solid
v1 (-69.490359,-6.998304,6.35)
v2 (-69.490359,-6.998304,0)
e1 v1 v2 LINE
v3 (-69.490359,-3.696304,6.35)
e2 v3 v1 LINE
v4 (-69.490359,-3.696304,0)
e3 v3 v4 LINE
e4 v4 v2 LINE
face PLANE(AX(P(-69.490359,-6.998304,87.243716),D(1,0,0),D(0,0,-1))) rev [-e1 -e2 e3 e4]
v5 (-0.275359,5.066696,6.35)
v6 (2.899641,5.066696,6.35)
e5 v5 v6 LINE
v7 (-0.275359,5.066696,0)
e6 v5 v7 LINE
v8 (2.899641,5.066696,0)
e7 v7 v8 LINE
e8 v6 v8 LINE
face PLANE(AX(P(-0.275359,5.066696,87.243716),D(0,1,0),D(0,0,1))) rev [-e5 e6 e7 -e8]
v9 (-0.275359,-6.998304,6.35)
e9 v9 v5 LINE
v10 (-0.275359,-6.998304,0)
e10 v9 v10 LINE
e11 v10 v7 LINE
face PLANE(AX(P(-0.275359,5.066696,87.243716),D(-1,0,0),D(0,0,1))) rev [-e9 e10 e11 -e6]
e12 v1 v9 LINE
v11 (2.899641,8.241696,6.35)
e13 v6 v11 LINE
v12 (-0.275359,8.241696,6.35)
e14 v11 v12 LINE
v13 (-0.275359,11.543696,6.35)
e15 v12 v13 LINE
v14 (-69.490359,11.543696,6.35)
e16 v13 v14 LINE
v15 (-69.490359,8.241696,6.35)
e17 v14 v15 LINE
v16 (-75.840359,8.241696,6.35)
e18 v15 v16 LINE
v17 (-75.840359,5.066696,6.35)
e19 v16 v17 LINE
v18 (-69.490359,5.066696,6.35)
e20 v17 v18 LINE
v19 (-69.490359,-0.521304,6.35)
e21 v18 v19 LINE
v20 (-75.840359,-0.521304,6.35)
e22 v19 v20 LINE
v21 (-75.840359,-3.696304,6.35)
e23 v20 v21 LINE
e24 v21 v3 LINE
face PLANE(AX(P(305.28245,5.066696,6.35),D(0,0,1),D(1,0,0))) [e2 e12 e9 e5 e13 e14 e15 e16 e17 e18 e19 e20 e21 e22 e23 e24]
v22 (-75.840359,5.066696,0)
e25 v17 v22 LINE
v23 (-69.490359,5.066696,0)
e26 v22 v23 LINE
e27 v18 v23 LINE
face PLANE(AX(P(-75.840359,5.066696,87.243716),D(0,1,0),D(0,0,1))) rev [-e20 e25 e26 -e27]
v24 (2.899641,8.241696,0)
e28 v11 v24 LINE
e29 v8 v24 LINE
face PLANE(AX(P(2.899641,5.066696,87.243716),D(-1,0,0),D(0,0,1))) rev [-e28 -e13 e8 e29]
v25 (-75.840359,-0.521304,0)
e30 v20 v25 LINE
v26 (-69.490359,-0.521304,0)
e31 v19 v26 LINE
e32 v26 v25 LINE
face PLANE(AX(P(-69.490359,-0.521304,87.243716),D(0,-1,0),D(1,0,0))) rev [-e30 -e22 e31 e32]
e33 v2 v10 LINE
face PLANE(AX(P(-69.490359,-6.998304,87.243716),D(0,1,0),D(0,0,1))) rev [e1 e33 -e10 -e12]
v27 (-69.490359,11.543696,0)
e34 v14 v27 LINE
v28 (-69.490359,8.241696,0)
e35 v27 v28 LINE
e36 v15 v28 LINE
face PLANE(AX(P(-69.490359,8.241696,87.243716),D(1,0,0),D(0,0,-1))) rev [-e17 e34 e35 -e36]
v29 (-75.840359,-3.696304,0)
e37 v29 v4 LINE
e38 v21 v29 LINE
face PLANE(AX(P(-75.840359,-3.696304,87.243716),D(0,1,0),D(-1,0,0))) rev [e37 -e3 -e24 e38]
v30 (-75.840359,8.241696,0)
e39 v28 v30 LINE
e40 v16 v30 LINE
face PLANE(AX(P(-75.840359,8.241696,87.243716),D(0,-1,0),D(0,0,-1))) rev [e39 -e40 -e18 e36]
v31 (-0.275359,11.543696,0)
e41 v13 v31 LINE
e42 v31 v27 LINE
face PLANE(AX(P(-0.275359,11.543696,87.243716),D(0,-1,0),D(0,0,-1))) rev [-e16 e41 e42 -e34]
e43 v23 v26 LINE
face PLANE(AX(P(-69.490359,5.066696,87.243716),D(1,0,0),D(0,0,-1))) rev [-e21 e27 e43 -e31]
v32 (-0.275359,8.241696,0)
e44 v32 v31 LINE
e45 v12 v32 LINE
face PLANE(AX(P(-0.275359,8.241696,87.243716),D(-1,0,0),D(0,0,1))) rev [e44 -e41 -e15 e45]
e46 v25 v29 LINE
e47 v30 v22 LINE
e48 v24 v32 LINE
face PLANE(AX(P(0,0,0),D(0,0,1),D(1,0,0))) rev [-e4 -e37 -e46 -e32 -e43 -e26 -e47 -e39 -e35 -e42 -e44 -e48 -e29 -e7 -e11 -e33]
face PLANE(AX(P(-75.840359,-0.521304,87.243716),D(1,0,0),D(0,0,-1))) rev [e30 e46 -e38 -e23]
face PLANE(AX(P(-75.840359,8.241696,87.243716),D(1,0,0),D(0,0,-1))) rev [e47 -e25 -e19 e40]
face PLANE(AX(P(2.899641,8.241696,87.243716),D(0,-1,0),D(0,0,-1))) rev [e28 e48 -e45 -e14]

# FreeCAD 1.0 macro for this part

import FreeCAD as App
import Part
import Sketcher

V = App.Vector
Q = App.Units.Quantity


def add_polygon(sketch, points):
    """Adds a closed chain of lines whose ends are joined by coincident constraints."""
    first, n = sketch.GeometryCount, len(points)
    for a, b in zip(points, points[1:] + points[:1]):
        sketch.addGeometry(Part.LineSegment(App.Vector(*a, 0), App.Vector(*b, 0)), False)
    for i in range(n):
        sketch.addConstraint(Sketcher.Constraint("Coincident", first + i, 2, first + (i + 1) % n, 1))

doc = App.newDocument("Part")
body = doc.addObject("PartDesign::Body", "Body")

# Sketch on XY plane
sketch1 = body.newObject("Sketcher::SketchObject", "Sketch")
sketch1.AttachmentSupport = (doc.getObject("XY_Plane"), [""])
sketch1.MapMode = "FlatFace"
add_polygon(sketch1, [(-69.490359, 8.241696), (-75.840359, 8.241696), (-75.840359, 5.066696), (-69.490359, 5.066696), (-69.490359, -0.521304), (-75.840359, -0.521304), (-75.840359, -3.696304), (-69.490359, -3.696304), (-69.490359, -6.998304), (-0.275359, -6.998304), (-0.275359, 5.066696), (2.899641, 5.066696), (2.899641, 8.241696), (-0.275359, 8.241696), (-0.275359, 11.543696), (-69.490359, 11.543696)])  # lines 0-15
sketch1.addConstraint(Sketcher.Constraint("Horizontal", 0))
sketch1.addConstraint(Sketcher.Constraint("Vertical", 1))
sketch1.addConstraint(Sketcher.Constraint("Horizontal", 2))
sketch1.addConstraint(Sketcher.Constraint("Vertical", 3))
sketch1.addConstraint(Sketcher.Constraint("Horizontal", 4))
sketch1.addConstraint(Sketcher.Constraint("Vertical", 5))
sketch1.addConstraint(Sketcher.Constraint("Horizontal", 6))
sketch1.addConstraint(Sketcher.Constraint("Vertical", 7))
sketch1.addConstraint(Sketcher.Constraint("Horizontal", 8))
sketch1.addConstraint(Sketcher.Constraint("Vertical", 9))
sketch1.addConstraint(Sketcher.Constraint("Horizontal", 10))
sketch1.addConstraint(Sketcher.Constraint("Vertical", 11))
sketch1.addConstraint(Sketcher.Constraint("Horizontal", 12))
sketch1.addConstraint(Sketcher.Constraint("Vertical", 13))
sketch1.addConstraint(Sketcher.Constraint("Horizontal", 14))
sketch1.addConstraint(Sketcher.Constraint("Vertical", 15))
sketch1.addConstraint(Sketcher.Constraint("Horizontal", 2, 2, 9, 2))
sketch1.addConstraint(Sketcher.Constraint("Horizontal", 0, 2, 11, 2))
sketch1.addConstraint(Sketcher.Constraint("Vertical", 1, 2, 4, 2))
sketch1.addConstraint(Sketcher.Constraint("Vertical", 3, 2, 6, 2))
sketch1.addConstraint(Sketcher.Constraint("Vertical", 9, 2, 12, 2))
sketch1.addConstraint(Sketcher.Constraint("Vertical", 7, 2, 14, 2))
sketch1.addConstraint(Sketcher.Constraint("Equal", 12, 1))
sketch1.addConstraint(Sketcher.Constraint("Equal", 1, 5))
sketch1.addConstraint(Sketcher.Constraint("Equal", 7, 13))
sketch1.addConstraint(Sketcher.Constraint("DistanceX", 0, 2, 0, 1, Q("0.25 in")))
sketch1.addConstraint(Sketcher.Constraint("DistanceY", 3, 2, 3, 1, Q("0.22 in")))
sketch1.addConstraint(Sketcher.Constraint("DistanceY", 7, 2, 7, 1, Q("0.13 in")))
sketch1.addConstraint(Sketcher.Constraint("DistanceY", 8, 2, 11, 2, Q("0.6 in")))
sketch1.addConstraint(Sketcher.Constraint("DistanceX", 8, 1, 8, 2, Q("2.725 in")))
sketch1.addConstraint(Sketcher.Constraint("DistanceX", 0, 2, -1, 1, Q("75.840359 mm")))
sketch1.addConstraint(Sketcher.Constraint("DistanceY", -1, 1, 0, 2, Q("8.241696 mm")))
pad1 = body.newObject("PartDesign::Pad", "Pad")
pad1.Profile = sketch1
pad1.Length = Q("0.25 in")

doc.recompute()
